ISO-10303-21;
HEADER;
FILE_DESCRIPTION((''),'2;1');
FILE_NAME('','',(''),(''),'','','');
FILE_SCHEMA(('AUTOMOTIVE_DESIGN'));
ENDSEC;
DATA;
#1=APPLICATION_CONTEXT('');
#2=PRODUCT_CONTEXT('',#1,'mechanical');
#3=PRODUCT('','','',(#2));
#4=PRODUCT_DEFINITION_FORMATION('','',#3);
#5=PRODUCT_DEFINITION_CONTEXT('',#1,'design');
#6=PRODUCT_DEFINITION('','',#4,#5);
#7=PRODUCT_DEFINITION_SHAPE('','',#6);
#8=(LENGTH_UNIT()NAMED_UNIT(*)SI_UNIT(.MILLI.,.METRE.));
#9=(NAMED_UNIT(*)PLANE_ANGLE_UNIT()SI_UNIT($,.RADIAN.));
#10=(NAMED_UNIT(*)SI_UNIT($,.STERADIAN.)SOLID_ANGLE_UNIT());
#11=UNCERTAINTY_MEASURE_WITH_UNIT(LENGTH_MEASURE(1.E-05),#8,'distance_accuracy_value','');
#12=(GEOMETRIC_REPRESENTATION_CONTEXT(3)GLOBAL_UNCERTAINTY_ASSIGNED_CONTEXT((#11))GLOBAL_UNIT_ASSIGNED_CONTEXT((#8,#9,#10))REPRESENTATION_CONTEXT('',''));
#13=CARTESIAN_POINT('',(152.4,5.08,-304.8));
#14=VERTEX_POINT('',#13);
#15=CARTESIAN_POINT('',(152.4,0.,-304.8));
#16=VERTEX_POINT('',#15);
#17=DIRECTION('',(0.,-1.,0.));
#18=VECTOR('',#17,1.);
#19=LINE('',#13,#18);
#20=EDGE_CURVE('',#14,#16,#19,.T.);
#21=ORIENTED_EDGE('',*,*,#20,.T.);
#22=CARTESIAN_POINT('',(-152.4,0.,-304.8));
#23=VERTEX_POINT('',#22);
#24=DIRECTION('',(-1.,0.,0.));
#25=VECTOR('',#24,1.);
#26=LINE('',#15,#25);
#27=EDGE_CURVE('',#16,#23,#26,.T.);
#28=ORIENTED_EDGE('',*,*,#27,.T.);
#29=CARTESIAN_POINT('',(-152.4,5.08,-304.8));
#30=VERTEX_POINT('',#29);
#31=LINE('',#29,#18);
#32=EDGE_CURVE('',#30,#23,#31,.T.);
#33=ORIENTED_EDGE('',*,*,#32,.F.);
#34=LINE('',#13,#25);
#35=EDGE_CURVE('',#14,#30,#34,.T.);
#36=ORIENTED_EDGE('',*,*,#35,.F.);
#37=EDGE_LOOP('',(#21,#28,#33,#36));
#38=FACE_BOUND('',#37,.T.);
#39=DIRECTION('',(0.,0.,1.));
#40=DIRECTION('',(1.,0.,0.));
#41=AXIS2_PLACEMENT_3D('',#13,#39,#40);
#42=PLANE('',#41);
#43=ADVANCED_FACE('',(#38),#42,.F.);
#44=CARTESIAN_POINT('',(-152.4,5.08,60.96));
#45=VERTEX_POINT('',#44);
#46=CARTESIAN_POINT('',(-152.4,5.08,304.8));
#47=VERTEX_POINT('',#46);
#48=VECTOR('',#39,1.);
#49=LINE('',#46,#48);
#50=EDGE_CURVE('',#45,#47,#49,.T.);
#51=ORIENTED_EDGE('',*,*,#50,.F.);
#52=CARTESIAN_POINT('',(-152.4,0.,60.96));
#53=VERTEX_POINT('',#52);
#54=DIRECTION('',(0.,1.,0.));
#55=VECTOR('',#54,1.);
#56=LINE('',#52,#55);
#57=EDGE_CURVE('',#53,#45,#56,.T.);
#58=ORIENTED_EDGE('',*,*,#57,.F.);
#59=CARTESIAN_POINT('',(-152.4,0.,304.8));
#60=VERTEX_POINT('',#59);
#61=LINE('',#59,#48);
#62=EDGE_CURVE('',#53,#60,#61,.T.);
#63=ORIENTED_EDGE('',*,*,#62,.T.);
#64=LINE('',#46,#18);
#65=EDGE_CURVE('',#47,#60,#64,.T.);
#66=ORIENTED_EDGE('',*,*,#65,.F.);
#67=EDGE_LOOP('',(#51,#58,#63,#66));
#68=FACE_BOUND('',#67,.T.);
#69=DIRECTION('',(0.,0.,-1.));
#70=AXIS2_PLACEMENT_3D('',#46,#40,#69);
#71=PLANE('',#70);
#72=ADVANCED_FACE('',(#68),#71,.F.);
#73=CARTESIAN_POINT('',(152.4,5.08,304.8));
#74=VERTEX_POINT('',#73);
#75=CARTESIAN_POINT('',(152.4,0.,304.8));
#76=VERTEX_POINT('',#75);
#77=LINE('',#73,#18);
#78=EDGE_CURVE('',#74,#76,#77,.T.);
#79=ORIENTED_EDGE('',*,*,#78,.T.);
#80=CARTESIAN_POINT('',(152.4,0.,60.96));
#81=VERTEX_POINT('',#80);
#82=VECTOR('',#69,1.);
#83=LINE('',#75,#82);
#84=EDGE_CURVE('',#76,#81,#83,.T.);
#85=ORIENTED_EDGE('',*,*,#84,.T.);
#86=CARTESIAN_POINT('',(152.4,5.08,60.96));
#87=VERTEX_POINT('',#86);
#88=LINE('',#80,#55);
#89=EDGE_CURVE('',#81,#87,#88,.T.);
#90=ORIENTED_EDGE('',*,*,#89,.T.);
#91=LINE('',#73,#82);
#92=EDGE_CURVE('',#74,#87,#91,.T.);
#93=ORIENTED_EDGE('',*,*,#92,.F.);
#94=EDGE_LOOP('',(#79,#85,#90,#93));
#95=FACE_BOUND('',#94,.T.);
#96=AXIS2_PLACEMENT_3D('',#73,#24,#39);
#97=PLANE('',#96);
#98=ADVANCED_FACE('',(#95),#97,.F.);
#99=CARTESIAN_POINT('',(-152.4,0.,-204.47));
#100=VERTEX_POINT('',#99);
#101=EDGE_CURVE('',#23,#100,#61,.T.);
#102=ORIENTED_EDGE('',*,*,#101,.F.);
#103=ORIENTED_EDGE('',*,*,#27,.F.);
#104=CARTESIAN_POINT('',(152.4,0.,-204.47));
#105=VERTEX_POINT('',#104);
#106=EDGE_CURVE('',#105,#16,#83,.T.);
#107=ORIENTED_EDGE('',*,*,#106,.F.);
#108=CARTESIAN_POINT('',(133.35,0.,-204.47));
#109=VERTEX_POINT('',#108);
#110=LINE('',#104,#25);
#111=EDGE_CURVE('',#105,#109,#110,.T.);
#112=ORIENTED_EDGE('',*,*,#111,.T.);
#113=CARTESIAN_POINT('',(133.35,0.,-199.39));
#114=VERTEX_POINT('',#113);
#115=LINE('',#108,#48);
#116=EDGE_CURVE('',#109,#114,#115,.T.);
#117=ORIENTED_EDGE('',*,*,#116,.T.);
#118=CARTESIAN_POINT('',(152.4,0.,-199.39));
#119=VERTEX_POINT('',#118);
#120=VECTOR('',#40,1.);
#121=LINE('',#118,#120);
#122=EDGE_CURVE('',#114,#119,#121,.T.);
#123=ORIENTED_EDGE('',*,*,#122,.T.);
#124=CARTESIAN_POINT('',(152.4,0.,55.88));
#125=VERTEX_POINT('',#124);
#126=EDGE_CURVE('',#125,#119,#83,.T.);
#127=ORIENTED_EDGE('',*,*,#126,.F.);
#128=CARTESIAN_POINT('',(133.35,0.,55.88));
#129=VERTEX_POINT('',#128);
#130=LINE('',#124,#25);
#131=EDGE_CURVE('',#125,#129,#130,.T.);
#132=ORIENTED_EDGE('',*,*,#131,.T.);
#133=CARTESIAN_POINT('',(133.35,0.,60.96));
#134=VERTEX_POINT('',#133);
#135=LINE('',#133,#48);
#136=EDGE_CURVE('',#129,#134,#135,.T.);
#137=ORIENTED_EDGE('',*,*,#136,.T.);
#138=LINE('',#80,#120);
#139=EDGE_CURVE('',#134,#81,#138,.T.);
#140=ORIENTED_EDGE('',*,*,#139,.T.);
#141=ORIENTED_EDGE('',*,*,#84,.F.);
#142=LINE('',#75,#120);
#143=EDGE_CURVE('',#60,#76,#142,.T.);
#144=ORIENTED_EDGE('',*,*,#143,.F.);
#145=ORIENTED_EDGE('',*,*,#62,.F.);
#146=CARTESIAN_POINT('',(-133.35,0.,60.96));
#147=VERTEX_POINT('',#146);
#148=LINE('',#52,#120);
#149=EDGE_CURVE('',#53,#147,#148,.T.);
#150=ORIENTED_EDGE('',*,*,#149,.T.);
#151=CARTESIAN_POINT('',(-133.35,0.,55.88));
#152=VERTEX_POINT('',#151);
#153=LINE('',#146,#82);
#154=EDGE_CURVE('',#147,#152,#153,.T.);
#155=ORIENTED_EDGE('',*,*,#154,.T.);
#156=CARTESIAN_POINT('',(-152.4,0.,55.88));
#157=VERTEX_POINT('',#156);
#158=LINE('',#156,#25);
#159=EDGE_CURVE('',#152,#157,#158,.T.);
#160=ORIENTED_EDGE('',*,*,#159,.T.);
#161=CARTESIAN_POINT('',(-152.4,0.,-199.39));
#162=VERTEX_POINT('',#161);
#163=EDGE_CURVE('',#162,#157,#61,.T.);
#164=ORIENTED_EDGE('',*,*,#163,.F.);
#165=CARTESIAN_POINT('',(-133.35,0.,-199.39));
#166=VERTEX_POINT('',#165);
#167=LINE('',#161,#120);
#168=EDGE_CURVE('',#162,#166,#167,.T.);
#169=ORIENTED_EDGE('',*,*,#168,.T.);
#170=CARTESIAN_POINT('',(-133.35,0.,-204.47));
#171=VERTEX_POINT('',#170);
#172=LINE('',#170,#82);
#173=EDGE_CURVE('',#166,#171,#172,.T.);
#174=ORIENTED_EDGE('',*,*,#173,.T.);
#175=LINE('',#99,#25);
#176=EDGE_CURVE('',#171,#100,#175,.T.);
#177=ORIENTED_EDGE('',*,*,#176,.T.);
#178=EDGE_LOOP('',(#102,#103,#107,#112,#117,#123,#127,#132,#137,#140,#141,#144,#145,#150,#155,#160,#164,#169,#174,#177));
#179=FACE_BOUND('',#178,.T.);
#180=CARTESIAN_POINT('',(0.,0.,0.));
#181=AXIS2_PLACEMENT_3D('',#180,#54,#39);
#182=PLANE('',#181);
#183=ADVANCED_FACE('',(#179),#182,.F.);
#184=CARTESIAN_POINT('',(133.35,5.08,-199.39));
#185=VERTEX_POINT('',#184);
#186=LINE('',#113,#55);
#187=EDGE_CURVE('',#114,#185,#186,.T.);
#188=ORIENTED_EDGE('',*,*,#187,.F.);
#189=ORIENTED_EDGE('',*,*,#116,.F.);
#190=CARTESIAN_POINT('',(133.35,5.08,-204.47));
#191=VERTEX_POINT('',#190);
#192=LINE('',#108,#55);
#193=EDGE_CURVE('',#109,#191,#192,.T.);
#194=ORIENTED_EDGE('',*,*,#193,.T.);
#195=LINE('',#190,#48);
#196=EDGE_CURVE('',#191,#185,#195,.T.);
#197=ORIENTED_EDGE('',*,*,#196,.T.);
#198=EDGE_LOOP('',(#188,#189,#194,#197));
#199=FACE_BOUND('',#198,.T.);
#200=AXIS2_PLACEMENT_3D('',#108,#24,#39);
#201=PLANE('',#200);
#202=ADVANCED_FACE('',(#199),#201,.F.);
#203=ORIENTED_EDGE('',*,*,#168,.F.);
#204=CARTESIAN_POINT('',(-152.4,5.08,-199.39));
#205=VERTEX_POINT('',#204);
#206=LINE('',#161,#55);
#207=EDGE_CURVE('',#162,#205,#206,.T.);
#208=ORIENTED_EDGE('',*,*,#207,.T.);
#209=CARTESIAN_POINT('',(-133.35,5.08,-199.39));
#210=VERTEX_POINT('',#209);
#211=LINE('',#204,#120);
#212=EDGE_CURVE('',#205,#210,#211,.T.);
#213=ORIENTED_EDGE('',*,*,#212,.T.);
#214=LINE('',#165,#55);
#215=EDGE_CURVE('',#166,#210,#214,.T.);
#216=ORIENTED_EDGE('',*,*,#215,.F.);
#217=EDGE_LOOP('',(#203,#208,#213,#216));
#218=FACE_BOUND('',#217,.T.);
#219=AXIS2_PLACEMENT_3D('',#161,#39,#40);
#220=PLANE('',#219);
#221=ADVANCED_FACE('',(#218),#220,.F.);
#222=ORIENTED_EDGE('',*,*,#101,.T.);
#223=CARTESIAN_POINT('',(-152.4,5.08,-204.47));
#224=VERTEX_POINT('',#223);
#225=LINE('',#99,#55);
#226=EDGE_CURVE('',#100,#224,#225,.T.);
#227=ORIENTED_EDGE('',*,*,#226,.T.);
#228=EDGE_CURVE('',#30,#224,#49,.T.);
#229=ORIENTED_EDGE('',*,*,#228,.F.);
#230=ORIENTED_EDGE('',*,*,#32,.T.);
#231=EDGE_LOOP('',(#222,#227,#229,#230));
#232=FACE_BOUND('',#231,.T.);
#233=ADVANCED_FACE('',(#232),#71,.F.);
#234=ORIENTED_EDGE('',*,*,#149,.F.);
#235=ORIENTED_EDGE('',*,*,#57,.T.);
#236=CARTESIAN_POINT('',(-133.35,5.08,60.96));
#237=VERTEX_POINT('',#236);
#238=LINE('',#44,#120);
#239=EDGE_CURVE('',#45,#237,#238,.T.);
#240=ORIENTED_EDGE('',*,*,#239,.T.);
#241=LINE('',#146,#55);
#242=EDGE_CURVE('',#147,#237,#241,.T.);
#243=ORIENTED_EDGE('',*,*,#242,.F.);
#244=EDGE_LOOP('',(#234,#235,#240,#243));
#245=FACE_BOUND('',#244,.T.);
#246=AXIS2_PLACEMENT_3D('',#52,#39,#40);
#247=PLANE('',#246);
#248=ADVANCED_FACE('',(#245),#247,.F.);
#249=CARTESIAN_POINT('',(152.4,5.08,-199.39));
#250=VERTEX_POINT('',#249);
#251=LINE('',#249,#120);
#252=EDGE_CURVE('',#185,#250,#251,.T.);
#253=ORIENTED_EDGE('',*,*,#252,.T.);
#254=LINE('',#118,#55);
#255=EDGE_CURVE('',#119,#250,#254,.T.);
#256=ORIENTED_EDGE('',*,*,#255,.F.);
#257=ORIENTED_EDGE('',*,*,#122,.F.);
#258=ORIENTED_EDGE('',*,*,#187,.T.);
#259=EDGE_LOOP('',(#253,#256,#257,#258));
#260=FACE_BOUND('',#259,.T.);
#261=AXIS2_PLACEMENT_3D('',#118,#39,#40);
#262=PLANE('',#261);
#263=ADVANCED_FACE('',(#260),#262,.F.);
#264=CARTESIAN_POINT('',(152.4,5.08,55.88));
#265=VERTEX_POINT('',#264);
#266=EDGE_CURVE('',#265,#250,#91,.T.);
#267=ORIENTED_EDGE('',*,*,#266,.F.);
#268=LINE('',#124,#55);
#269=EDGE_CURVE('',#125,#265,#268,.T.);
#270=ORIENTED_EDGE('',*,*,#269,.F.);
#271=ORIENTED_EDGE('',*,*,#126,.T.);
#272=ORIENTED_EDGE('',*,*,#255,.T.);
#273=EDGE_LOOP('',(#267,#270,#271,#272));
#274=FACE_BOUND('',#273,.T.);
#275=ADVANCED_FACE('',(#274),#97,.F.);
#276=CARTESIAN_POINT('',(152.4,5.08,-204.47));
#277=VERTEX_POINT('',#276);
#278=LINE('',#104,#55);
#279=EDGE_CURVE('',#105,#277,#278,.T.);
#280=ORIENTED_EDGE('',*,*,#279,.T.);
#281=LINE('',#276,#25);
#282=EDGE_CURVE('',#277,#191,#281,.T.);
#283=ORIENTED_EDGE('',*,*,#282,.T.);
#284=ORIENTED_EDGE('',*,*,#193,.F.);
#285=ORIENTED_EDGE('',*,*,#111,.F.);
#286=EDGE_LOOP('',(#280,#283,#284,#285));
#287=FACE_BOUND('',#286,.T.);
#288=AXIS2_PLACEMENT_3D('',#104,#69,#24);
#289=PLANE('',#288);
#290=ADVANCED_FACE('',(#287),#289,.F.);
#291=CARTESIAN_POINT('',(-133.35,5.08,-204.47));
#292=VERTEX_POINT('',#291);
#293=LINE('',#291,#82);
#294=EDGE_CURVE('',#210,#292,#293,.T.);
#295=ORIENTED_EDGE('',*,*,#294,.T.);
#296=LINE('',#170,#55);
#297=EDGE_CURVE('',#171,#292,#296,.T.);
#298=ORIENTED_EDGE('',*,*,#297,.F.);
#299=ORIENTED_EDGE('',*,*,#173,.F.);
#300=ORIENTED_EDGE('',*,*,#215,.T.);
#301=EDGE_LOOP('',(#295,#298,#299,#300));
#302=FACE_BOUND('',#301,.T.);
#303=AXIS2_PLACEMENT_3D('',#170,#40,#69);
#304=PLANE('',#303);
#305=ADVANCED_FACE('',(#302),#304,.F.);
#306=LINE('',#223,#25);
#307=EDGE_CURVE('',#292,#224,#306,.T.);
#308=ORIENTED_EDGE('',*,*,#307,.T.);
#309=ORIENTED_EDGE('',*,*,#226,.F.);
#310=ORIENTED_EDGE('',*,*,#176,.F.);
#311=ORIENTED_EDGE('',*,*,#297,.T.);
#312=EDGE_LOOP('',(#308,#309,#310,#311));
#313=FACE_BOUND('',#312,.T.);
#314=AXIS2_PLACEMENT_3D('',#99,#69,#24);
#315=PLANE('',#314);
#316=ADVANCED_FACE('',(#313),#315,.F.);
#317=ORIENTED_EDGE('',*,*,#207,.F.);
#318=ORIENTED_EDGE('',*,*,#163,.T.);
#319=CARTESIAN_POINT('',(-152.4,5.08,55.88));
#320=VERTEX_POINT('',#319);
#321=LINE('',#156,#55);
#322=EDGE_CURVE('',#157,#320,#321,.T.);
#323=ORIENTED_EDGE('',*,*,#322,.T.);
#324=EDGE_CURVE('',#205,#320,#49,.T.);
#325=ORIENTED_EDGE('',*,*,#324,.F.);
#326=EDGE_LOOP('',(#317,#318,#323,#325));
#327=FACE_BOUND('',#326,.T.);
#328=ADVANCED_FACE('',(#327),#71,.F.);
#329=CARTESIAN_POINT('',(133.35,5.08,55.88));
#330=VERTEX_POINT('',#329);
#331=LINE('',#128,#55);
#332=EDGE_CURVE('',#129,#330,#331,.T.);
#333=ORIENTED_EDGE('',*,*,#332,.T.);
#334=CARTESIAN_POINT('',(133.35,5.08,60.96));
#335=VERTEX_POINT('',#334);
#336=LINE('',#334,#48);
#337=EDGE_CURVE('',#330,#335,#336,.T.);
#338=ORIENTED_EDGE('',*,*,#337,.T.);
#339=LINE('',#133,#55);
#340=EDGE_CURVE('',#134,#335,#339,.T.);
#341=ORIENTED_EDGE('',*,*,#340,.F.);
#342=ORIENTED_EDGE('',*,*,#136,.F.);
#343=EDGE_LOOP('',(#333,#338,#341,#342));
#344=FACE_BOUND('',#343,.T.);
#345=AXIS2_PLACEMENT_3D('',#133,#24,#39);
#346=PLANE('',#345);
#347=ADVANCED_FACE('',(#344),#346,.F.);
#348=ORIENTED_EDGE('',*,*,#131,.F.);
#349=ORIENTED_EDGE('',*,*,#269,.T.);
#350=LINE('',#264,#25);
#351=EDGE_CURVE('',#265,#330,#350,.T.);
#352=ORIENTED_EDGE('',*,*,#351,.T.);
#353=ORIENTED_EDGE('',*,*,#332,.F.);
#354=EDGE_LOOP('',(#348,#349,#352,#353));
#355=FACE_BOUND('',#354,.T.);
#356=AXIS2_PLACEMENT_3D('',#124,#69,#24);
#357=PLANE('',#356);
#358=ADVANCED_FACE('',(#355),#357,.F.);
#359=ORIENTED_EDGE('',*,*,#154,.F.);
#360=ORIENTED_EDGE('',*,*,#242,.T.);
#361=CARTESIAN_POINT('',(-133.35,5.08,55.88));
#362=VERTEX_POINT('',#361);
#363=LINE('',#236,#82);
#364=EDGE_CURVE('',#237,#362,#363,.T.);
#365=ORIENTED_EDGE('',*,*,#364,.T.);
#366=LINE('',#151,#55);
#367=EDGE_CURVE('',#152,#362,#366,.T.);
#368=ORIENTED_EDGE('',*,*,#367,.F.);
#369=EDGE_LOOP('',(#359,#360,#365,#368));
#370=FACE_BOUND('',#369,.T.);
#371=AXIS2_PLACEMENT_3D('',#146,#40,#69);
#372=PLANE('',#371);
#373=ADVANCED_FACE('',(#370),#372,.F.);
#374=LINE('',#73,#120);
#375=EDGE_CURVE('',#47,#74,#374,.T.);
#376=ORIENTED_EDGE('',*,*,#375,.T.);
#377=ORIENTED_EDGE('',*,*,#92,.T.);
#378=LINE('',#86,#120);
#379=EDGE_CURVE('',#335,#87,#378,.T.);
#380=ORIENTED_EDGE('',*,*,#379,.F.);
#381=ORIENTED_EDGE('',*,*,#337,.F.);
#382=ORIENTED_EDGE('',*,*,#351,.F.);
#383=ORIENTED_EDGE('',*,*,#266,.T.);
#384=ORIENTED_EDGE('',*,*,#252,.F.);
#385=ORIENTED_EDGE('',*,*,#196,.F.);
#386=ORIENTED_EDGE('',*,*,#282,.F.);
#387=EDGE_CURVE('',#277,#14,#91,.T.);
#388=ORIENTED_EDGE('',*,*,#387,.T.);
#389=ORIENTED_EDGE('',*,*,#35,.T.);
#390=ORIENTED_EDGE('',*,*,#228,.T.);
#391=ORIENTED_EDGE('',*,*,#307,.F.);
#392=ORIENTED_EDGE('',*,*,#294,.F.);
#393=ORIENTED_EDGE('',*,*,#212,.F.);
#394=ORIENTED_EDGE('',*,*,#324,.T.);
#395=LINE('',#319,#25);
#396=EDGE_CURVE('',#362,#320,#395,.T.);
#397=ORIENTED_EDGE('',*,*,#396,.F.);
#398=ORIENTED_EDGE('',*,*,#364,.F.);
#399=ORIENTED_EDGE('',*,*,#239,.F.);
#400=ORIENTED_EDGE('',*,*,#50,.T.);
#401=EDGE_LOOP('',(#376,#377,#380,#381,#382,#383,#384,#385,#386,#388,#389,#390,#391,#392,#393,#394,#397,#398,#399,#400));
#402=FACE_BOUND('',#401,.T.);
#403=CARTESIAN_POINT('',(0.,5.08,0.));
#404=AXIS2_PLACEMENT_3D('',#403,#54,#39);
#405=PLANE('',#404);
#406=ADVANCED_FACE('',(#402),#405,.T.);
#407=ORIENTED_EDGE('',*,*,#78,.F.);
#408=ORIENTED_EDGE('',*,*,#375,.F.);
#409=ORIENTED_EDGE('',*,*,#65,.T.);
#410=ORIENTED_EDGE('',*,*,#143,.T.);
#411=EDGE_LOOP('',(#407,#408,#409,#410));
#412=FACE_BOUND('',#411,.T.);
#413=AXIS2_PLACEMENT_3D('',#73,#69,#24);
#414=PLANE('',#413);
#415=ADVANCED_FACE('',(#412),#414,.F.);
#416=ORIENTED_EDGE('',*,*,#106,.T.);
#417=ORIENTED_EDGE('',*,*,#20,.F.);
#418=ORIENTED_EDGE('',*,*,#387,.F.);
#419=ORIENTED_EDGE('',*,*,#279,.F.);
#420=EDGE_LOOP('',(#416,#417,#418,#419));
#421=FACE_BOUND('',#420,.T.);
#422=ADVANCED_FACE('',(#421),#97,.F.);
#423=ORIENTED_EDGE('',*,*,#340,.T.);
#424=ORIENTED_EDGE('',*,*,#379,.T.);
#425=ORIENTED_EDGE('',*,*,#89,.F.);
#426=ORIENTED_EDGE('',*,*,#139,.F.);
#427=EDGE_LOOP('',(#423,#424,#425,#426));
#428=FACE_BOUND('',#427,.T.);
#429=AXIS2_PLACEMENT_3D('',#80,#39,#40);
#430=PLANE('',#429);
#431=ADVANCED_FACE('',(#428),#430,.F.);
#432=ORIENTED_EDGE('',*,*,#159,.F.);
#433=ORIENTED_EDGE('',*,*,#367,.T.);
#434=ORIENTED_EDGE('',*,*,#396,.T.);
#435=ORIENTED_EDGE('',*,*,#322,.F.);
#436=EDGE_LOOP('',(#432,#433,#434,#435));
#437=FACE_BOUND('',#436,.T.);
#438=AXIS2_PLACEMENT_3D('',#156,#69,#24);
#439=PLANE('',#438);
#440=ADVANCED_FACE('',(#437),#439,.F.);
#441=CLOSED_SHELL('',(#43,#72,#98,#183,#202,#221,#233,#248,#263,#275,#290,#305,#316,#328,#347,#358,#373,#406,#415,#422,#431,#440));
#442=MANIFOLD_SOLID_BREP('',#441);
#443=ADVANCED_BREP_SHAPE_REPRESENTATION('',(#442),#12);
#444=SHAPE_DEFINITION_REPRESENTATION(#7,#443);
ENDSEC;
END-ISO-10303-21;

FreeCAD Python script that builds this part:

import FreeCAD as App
import Part
import Sketcher

V = App.Vector
Q = App.Units.Quantity

doc = App.newDocument("Part")
body = doc.addObject("PartDesign::Body", "Body")

sketch1 = doc.addObject("Sketcher::SketchObject", "Sketch")
body.addObject(sketch1)
sketch1.AttachmentSupport = (doc.XZ_Plane, [""])
sketch1.MapMode = "FlatFace"
sketch1.addGeometry([
    Part.LineSegment(V(-152.4, -304.8, 0), V(-152.4, 304.8, 0)),
    Part.LineSegment(V(-152.4, 304.8, 0), V(152.4, 304.8, 0)),
    Part.LineSegment(V(152.4, 304.8, 0), V(152.4, -304.8, 0)),
    Part.LineSegment(V(152.4, -304.8, 0), V(-152.4, -304.8, 0)),
], False)
sketch1.addConstraint([
    Sketcher.Constraint("Coincident", 0, 2, 1, 1),
    Sketcher.Constraint("Coincident", 1, 2, 2, 1),
    Sketcher.Constraint("Coincident", 2, 2, 3, 1),
    Sketcher.Constraint("Coincident", 3, 2, 0, 1),
    Sketcher.Constraint("Vertical", 0),
    Sketcher.Constraint("Horizontal", 1),
    Sketcher.Constraint("Vertical", 2),
    Sketcher.Constraint("Horizontal", 3),
    Sketcher.Constraint("Symmetric", 0, 2, 2, 2, -1, 1),
    Sketcher.Constraint("DistanceX", 1, 1, 1, 2, Q("12 in")),
    Sketcher.Constraint("DistanceY", 0, 1, 0, 2, Q("24 in")),
])
pad1 = doc.addObject("PartDesign::Pad", "Pad")
body.addObject(pad1)
pad1.Profile = sketch1
pad1.Length = Q("0.2 in")
pad1.Reversed = True

sketch2 = doc.addObject("Sketcher::SketchObject", "Sketch001")
body.addObject(sketch2)
sketch2.AttachmentSupport = (doc.XZ_Plane, [""])
sketch2.MapMode = "FlatFace"
sketch2.AttachmentOffset = App.Placement(V(0, 0, -0.2 * 25.4), App.Rotation())
sketch2.addGeometry([
    Part.LineSegment(V(133.35, 55.88, 0), V(133.35, 60.96, 0)),
    Part.LineSegment(V(133.35, 60.96, 0), V(152.4, 60.96, 0)),
    Part.LineSegment(V(152.4, 60.96, 0), V(152.4, 55.88, 0)),
    Part.LineSegment(V(152.4, 55.88, 0), V(133.35, 55.88, 0)),
    Part.LineSegment(V(133.35, -204.47, 0), V(133.35, -199.39, 0)),
    Part.LineSegment(V(133.35, -199.39, 0), V(152.4, -199.39, 0)),
    Part.LineSegment(V(152.4, -199.39, 0), V(152.4, -204.47, 0)),
    Part.LineSegment(V(152.4, -204.47, 0), V(133.35, -204.47, 0)),
    Part.LineSegment(V(-152.4, -204.47, 0), V(-152.4, -199.39, 0)),
    Part.LineSegment(V(-152.4, -199.39, 0), V(-133.35, -199.39, 0)),
    Part.LineSegment(V(-133.35, -199.39, 0), V(-133.35, -204.47, 0)),
    Part.LineSegment(V(-133.35, -204.47, 0), V(-152.4, -204.47, 0)),
    Part.LineSegment(V(-152.4, 55.88, 0), V(-152.4, 60.96, 0)),
    Part.LineSegment(V(-152.4, 60.96, 0), V(-133.35, 60.96, 0)),
    Part.LineSegment(V(-133.35, 60.96, 0), V(-133.35, 55.88, 0)),
    Part.LineSegment(V(-133.35, 55.88, 0), V(-152.4, 55.88, 0)),
], False)
sketch2.addConstraint([
    Sketcher.Constraint("Coincident", 0, 2, 1, 1),
    Sketcher.Constraint("Coincident", 1, 2, 2, 1),
    Sketcher.Constraint("Coincident", 2, 2, 3, 1),
    Sketcher.Constraint("Coincident", 3, 2, 0, 1),
    Sketcher.Constraint("Coincident", 4, 2, 5, 1),
    Sketcher.Constraint("Coincident", 5, 2, 6, 1),
    Sketcher.Constraint("Coincident", 6, 2, 7, 1),
    Sketcher.Constraint("Coincident", 7, 2, 4, 1),
    Sketcher.Constraint("Coincident", 8, 2, 9, 1),
    Sketcher.Constraint("Coincident", 9, 2, 10, 1),
    Sketcher.Constraint("Coincident", 10, 2, 11, 1),
    Sketcher.Constraint("Coincident", 11, 2, 8, 1),
    Sketcher.Constraint("Coincident", 12, 2, 13, 1),
    Sketcher.Constraint("Coincident", 13, 2, 14, 1),
    Sketcher.Constraint("Coincident", 14, 2, 15, 1),
    Sketcher.Constraint("Coincident", 15, 2, 12, 1),
    Sketcher.Constraint("Vertical", 0),
    Sketcher.Constraint("Horizontal", 1),
    Sketcher.Constraint("Vertical", 2),
    Sketcher.Constraint("Horizontal", 3),
    Sketcher.Constraint("Vertical", 4),
    Sketcher.Constraint("Horizontal", 5),
    Sketcher.Constraint("Vertical", 6),
    Sketcher.Constraint("Horizontal", 7),
    Sketcher.Constraint("Vertical", 8),
    Sketcher.Constraint("Horizontal", 9),
    Sketcher.Constraint("Vertical", 10),
    Sketcher.Constraint("Horizontal", 11),
    Sketcher.Constraint("Vertical", 12),
    Sketcher.Constraint("Horizontal", 13),
    Sketcher.Constraint("Vertical", 14),
    Sketcher.Constraint("Horizontal", 15),
    Sketcher.Constraint("Symmetric", 5, 2, 8, 2, -2),
    Sketcher.Constraint("Symmetric", 7, 2, 10, 2, -2),
    Sketcher.Constraint("Symmetric", 1, 2, 12, 2, -2),
    Sketcher.Constraint("Symmetric", 3, 2, 14, 2, -2),
    Sketcher.Constraint("Vertical", 3, 2, 4, 2),
    Sketcher.Constraint("Vertical", 2, 2, 5, 2),
    Sketcher.Constraint("Equal", 2, 4),
    Sketcher.Constraint("DistanceY", 0, 1, 0, 2, Q("0.2 in")),
    Sketcher.Constraint("DistanceX", -1, 1, 1, 2, Q("6 in")),
    Sketcher.Constraint("DistanceX", 1, 1, 1, 2, Q("0.75 in")),
    Sketcher.Constraint("DistanceY", -1, 1, 0, 2, Q("2.4 in")),
    Sketcher.Constraint("DistanceY", 4, 2, -1, 1, Q("7.85 in")),
])
pocket1 = doc.addObject("PartDesign::Pocket", "Pocket")
body.addObject(pocket1)
pocket1.Profile = sketch2
pocket1.Type = "ThroughAll"
pocket1.Reversed = True

doc.recompute()
